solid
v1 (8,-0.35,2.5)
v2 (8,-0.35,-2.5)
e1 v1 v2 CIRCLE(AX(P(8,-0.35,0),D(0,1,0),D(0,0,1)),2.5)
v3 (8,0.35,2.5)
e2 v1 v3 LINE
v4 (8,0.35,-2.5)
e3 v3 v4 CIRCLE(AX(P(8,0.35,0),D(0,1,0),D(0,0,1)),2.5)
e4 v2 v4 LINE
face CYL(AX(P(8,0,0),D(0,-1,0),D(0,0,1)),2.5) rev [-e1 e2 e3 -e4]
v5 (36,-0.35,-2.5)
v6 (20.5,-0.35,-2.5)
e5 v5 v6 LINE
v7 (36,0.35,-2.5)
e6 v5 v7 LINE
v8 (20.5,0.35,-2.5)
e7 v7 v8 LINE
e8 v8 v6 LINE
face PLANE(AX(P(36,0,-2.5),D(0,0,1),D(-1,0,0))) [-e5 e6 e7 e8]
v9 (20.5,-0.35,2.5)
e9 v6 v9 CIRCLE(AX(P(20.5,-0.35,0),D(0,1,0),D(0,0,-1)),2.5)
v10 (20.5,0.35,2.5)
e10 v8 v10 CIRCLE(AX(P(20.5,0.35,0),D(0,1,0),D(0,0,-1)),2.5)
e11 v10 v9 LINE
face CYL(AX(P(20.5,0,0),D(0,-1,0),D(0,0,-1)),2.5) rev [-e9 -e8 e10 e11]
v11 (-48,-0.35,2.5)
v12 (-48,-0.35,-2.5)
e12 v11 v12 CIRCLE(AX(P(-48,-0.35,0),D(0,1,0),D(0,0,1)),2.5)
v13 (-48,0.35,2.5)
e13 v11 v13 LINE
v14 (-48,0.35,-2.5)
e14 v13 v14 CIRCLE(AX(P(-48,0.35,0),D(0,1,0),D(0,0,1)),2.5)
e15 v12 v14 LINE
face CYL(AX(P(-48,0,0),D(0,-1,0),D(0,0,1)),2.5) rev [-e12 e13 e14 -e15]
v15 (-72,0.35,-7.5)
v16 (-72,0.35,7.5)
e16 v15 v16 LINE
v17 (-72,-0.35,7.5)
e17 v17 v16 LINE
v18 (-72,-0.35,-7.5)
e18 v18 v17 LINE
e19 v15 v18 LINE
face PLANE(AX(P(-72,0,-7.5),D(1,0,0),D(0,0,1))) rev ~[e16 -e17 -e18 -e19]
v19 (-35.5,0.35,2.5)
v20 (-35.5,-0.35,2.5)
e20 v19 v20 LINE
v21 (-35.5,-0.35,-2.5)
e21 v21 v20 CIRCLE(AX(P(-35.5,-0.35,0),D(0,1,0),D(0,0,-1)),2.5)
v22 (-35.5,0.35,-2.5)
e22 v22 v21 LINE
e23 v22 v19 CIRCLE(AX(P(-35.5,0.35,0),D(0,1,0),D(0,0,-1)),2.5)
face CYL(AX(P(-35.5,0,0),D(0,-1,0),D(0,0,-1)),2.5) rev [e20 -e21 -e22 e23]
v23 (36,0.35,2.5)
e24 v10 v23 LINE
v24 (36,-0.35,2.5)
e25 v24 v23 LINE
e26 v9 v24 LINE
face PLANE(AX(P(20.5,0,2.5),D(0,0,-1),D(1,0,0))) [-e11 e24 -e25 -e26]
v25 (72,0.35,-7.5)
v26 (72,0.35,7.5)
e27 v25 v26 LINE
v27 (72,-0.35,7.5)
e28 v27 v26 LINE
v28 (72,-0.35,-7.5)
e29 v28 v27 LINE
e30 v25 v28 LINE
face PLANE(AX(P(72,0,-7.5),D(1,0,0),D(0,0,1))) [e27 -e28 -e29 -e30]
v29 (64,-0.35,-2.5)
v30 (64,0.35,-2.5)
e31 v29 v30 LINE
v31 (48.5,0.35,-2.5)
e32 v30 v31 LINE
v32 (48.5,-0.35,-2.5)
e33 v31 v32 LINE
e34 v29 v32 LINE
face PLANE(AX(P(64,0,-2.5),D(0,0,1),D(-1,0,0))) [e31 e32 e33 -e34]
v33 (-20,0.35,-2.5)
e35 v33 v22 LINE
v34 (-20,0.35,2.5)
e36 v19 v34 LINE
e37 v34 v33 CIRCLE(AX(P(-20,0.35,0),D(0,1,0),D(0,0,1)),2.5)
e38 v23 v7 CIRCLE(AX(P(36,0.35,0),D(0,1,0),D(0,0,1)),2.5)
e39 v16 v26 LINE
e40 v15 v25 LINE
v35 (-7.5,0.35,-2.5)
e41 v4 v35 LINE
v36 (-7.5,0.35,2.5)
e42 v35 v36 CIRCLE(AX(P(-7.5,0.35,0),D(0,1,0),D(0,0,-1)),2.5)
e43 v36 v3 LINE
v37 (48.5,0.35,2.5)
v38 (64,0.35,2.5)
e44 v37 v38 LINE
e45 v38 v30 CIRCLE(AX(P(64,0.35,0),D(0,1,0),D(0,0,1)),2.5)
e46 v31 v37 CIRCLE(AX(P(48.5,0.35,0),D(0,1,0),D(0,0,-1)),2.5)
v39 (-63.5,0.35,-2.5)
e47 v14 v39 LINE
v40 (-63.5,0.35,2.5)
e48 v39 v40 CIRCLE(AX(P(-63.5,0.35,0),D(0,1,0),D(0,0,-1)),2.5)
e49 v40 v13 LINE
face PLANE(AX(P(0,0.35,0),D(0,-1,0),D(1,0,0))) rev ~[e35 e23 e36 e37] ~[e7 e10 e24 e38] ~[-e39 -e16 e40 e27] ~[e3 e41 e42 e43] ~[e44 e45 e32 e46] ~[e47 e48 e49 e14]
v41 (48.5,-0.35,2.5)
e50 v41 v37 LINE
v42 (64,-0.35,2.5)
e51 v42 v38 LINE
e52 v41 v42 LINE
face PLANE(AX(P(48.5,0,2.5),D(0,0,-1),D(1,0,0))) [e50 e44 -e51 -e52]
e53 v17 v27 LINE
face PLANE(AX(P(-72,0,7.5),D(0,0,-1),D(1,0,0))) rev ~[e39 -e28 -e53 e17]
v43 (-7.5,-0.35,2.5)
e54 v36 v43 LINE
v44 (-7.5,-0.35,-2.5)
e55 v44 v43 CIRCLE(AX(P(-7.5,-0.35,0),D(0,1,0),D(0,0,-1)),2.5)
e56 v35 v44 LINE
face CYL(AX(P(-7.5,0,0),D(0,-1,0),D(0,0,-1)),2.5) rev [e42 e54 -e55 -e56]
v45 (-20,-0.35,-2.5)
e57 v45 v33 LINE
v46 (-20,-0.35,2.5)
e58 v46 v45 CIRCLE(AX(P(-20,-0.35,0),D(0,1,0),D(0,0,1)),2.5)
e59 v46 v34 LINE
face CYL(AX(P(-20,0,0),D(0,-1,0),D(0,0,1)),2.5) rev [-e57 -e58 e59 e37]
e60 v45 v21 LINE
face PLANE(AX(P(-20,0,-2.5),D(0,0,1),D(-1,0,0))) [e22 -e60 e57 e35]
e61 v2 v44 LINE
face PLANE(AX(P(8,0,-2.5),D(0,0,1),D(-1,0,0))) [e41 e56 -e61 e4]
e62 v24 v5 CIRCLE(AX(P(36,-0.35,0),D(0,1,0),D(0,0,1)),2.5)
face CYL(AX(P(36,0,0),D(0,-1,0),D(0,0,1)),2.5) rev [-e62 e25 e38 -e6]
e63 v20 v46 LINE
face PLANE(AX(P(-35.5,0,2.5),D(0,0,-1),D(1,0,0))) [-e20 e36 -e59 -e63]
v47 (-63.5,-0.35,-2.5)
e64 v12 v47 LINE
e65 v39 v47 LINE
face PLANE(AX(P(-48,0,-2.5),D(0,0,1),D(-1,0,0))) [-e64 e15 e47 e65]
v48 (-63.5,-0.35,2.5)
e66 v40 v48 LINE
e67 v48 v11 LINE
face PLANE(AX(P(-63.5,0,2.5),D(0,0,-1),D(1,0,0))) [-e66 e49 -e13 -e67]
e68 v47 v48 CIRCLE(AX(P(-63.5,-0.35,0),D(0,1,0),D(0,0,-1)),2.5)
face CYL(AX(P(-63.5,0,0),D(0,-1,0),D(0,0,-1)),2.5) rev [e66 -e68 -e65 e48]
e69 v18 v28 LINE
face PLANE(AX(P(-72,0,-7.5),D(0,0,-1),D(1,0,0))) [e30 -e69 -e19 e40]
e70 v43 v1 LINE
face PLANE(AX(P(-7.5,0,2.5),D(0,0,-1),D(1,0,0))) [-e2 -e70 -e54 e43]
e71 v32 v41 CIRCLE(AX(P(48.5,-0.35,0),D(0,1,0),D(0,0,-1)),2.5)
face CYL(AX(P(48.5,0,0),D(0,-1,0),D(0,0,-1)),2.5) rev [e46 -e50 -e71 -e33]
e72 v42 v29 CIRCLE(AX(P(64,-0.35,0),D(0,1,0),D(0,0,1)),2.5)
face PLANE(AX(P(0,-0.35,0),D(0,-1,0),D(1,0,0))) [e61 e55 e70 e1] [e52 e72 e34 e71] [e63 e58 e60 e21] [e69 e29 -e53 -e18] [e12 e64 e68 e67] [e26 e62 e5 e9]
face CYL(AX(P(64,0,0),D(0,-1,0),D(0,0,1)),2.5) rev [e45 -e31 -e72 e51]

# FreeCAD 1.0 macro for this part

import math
import FreeCAD as App
import Part
import Sketcher
Q = App.Units.Quantity


def add_polygon(sketch, points):
    """Adds a closed chain of lines whose ends are joined by coincident constraints."""
    first, n = sketch.GeometryCount, len(points)
    for a, b in zip(points, points[1:] + points[:1]):
        sketch.addGeometry(Part.LineSegment(App.Vector(*a, 0), App.Vector(*b, 0)), False)
    for i in range(n):
        sketch.addConstraint(Sketcher.Constraint("Coincident", first + i, 2, first + (i + 1) % n, 1))

doc = App.newDocument("Part")
params = doc.addObject("Spreadsheet::Sheet", "Params")
for row, (alias, value) in enumerate([
    ("sketch1_radius", "2.5 mm"),
    ("sketch1_width", "144 mm"),
    ("sketch1_height", "15 mm"),
    ("sketch1_width2", "15.5 mm"),
    ("pad1_length", "0.7 mm"),
], start=1):
    params.set(f"A{row}", alias)
    params.set(f"B{row}", "=" + value)
    params.setAlias(f"B{row}", alias)

body = doc.addObject("PartDesign::Body", "Body")

sketch1 = body.newObject("Sketcher::SketchObject", "Sketch")
sketch1.AttachmentSupport = (doc.getObject("XZ_Plane"), [""])
sketch1.MapMode = "FlatFace"
add_polygon(sketch1, [(-72, 7.5), (-72, -7.5), (72, -7.5), (72, 7.5)])
sketch1.addGeometry(Part.LineSegment(App.Vector(-48, -2.5, 0), App.Vector(-63.5, -2.5, 0)), False)
sketch1.addGeometry(Part.ArcOfCircle(Part.Circle(App.Vector(-63.5, 0, 0), App.Vector(0, 0, 1), 2.5), math.radians(90), math.radians(270)), False)
sketch1.addGeometry(Part.LineSegment(App.Vector(-63.5, 2.5, 0), App.Vector(-48, 2.5, 0)), False)
sketch1.addGeometry(Part.ArcOfCircle(Part.Circle(App.Vector(-48, 0, 0), App.Vector(0, 0, 1), 2.5), math.radians(-90), math.radians(90)), False)
sketch1.addGeometry(Part.LineSegment(App.Vector(-20, -2.5, 0), App.Vector(-35.5, -2.5, 0)), False)
sketch1.addGeometry(Part.ArcOfCircle(Part.Circle(App.Vector(-35.5, 0, 0), App.Vector(0, 0, 1), 2.5), math.radians(90), math.radians(270)), False)
sketch1.addGeometry(Part.LineSegment(App.Vector(-35.5, 2.5, 0), App.Vector(-20, 2.5, 0)), False)
sketch1.addGeometry(Part.ArcOfCircle(Part.Circle(App.Vector(-20, 0, 0), App.Vector(0, 0, 1), 2.5), math.radians(-90), math.radians(90)), False)
sketch1.addGeometry(Part.LineSegment(App.Vector(8, -2.5, 0), App.Vector(-7.5, -2.5, 0)), False)
sketch1.addGeometry(Part.ArcOfCircle(Part.Circle(App.Vector(-7.5, 0, 0), App.Vector(0, 0, 1), 2.5), math.radians(90), math.radians(270)), False)
sketch1.addGeometry(Part.LineSegment(App.Vector(-7.5, 2.5, 0), App.Vector(8, 2.5, 0)), False)
sketch1.addGeometry(Part.ArcOfCircle(Part.Circle(App.Vector(8, 0, 0), App.Vector(0, 0, 1), 2.5), math.radians(-90), math.radians(90)), False)
sketch1.addGeometry(Part.LineSegment(App.Vector(36, -2.5, 0), App.Vector(20.5, -2.5, 0)), False)
sketch1.addGeometry(Part.ArcOfCircle(Part.Circle(App.Vector(20.5, 0, 0), App.Vector(0, 0, 1), 2.5), math.radians(90), math.radians(270)), False)
sketch1.addGeometry(Part.LineSegment(App.Vector(20.5, 2.5, 0), App.Vector(36, 2.5, 0)), False)
sketch1.addGeometry(Part.ArcOfCircle(Part.Circle(App.Vector(36, 0, 0), App.Vector(0, 0, 1), 2.5), math.radians(-90), math.radians(90)), False)
sketch1.addGeometry(Part.LineSegment(App.Vector(64, -2.5, 0), App.Vector(48.5, -2.5, 0)), False)
sketch1.addGeometry(Part.ArcOfCircle(Part.Circle(App.Vector(48.5, 0, 0), App.Vector(0, 0, 1), 2.5), math.radians(90), math.radians(270)), False)
sketch1.addGeometry(Part.LineSegment(App.Vector(48.5, 2.5, 0), App.Vector(64, 2.5, 0)), False)
sketch1.addGeometry(Part.ArcOfCircle(Part.Circle(App.Vector(64, 0, 0), App.Vector(0, 0, 1), 2.5), math.radians(-90), math.radians(90)), False)
sketch1.addConstraint(Sketcher.Constraint("Tangent", 4, 2, 5, 2))
sketch1.addConstraint(Sketcher.Constraint("Tangent", 5, 1, 6, 1))
sketch1.addConstraint(Sketcher.Constraint("Tangent", 6, 2, 7, 2))
sketch1.addConstraint(Sketcher.Constraint("Tangent", 7, 1, 4, 1))
sketch1.addConstraint(Sketcher.Constraint("Tangent", 8, 2, 9, 2))
sketch1.addConstraint(Sketcher.Constraint("Tangent", 9, 1, 10, 1))
sketch1.addConstraint(Sketcher.Constraint("Tangent", 10, 2, 11, 2))
sketch1.addConstraint(Sketcher.Constraint("Tangent", 11, 1, 8, 1))
sketch1.addConstraint(Sketcher.Constraint("Tangent", 12, 2, 13, 2))
sketch1.addConstraint(Sketcher.Constraint("Tangent", 13, 1, 14, 1))
sketch1.addConstraint(Sketcher.Constraint("Tangent", 14, 2, 15, 2))
sketch1.addConstraint(Sketcher.Constraint("Tangent", 15, 1, 12, 1))
sketch1.addConstraint(Sketcher.Constraint("Tangent", 16, 2, 17, 2))
sketch1.addConstraint(Sketcher.Constraint("Tangent", 17, 1, 18, 1))
sketch1.addConstraint(Sketcher.Constraint("Tangent", 18, 2, 19, 2))
sketch1.addConstraint(Sketcher.Constraint("Tangent", 19, 1, 16, 1))
sketch1.addConstraint(Sketcher.Constraint("Tangent", 20, 2, 21, 2))
sketch1.addConstraint(Sketcher.Constraint("Tangent", 21, 1, 22, 1))
sketch1.addConstraint(Sketcher.Constraint("Tangent", 22, 2, 23, 2))
sketch1.addConstraint(Sketcher.Constraint("Tangent", 23, 1, 20, 1))
sketch1.addConstraint(Sketcher.Constraint("Vertical", 0))
sketch1.addConstraint(Sketcher.Constraint("Horizontal", 1))
sketch1.addConstraint(Sketcher.Constraint("Vertical", 2))
sketch1.addConstraint(Sketcher.Constraint("Horizontal", 3))
sketch1.addConstraint(Sketcher.Constraint("Horizontal", 4))
sketch1.addConstraint(Sketcher.Constraint("Horizontal", 6))
sketch1.addConstraint(Sketcher.Constraint("Horizontal", 8))
sketch1.addConstraint(Sketcher.Constraint("Horizontal", 10))
sketch1.addConstraint(Sketcher.Constraint("Horizontal", 12))
sketch1.addConstraint(Sketcher.Constraint("Horizontal", 14))
sketch1.addConstraint(Sketcher.Constraint("Horizontal", 16))
sketch1.addConstraint(Sketcher.Constraint("Horizontal", 18))
sketch1.addConstraint(Sketcher.Constraint("Horizontal", 20))
sketch1.addConstraint(Sketcher.Constraint("Horizontal", 22))
sketch1.addConstraint(Sketcher.Constraint("Equal", 7, 9))
sketch1.addConstraint(Sketcher.Constraint("Equal", 11, 13))
sketch1.addConstraint(Sketcher.Constraint("Equal", 15, 17))
sketch1.addConstraint(Sketcher.Constraint("Equal", 19, 21))
sketch1.addConstraint(Sketcher.Constraint("Symmetric", 0, 2, 2, 2, -1, 1))
sketch1.addConstraint(Sketcher.Constraint("PointOnObject", 5, 3, -1))
sketch1.addConstraint(Sketcher.Constraint("PointOnObject", 9, 3, -1))
sketch1.addConstraint(Sketcher.Constraint("PointOnObject", 13, 3, -1))
sketch1.addConstraint(Sketcher.Constraint("PointOnObject", 17, 3, -1))
sketch1.addConstraint(Sketcher.Constraint("PointOnObject", 21, 3, -1))
sketch1.addConstraint(Sketcher.Constraint("Equal", 6, 8))
sketch1.addConstraint(Sketcher.Constraint("Equal", 10, 12))
sketch1.addConstraint(Sketcher.Constraint("Equal", 14, 16))
sketch1.addConstraint(Sketcher.Constraint("Equal", 18, 20))
sketch1.addConstraint(Sketcher.Constraint("Radius", 5, Q("2.5 mm")))
sketch1.addConstraint(Sketcher.Constraint("DistanceX", 1, 1, 1, 2, Q("144 mm")))
sketch1.addConstraint(Sketcher.Constraint("DistanceY", 0, 2, 0, 1, Q("15 mm")))
sketch1.addConstraint(Sketcher.Constraint("DistanceX", 4, 2, 4, 1, Q("15.5 mm")))
sketch1.addConstraint(Sketcher.Constraint("DistanceX", 7, 3, -1, 1, Q("48 mm")))
sketch1.addConstraint(Sketcher.Constraint("DistanceX", 11, 3, -1, 1, Q("20 mm")))
sketch1.addConstraint(Sketcher.Constraint("DistanceX", -1, 1, 15, 3, Q("8 mm")))
sketch1.addConstraint(Sketcher.Constraint("DistanceX", -1, 1, 19, 3, Q("36 mm")))
sketch1.addConstraint(Sketcher.Constraint("DistanceX", -1, 1, 23, 3, Q("64 mm")))
sketch1.setExpression("Constraints[52]", "Params.sketch1_radius")
sketch1.setExpression("Constraints[53]", "Params.sketch1_width")
sketch1.setExpression("Constraints[54]", "Params.sketch1_height")
sketch1.setExpression("Constraints[55]", "Params.sketch1_width2")
pad1 = body.newObject("PartDesign::Pad", "Pad")
pad1.Profile = sketch1
pad1.setExpression("Length", "Params.pad1_length")
pad1.Midplane = True

doc.recompute()
